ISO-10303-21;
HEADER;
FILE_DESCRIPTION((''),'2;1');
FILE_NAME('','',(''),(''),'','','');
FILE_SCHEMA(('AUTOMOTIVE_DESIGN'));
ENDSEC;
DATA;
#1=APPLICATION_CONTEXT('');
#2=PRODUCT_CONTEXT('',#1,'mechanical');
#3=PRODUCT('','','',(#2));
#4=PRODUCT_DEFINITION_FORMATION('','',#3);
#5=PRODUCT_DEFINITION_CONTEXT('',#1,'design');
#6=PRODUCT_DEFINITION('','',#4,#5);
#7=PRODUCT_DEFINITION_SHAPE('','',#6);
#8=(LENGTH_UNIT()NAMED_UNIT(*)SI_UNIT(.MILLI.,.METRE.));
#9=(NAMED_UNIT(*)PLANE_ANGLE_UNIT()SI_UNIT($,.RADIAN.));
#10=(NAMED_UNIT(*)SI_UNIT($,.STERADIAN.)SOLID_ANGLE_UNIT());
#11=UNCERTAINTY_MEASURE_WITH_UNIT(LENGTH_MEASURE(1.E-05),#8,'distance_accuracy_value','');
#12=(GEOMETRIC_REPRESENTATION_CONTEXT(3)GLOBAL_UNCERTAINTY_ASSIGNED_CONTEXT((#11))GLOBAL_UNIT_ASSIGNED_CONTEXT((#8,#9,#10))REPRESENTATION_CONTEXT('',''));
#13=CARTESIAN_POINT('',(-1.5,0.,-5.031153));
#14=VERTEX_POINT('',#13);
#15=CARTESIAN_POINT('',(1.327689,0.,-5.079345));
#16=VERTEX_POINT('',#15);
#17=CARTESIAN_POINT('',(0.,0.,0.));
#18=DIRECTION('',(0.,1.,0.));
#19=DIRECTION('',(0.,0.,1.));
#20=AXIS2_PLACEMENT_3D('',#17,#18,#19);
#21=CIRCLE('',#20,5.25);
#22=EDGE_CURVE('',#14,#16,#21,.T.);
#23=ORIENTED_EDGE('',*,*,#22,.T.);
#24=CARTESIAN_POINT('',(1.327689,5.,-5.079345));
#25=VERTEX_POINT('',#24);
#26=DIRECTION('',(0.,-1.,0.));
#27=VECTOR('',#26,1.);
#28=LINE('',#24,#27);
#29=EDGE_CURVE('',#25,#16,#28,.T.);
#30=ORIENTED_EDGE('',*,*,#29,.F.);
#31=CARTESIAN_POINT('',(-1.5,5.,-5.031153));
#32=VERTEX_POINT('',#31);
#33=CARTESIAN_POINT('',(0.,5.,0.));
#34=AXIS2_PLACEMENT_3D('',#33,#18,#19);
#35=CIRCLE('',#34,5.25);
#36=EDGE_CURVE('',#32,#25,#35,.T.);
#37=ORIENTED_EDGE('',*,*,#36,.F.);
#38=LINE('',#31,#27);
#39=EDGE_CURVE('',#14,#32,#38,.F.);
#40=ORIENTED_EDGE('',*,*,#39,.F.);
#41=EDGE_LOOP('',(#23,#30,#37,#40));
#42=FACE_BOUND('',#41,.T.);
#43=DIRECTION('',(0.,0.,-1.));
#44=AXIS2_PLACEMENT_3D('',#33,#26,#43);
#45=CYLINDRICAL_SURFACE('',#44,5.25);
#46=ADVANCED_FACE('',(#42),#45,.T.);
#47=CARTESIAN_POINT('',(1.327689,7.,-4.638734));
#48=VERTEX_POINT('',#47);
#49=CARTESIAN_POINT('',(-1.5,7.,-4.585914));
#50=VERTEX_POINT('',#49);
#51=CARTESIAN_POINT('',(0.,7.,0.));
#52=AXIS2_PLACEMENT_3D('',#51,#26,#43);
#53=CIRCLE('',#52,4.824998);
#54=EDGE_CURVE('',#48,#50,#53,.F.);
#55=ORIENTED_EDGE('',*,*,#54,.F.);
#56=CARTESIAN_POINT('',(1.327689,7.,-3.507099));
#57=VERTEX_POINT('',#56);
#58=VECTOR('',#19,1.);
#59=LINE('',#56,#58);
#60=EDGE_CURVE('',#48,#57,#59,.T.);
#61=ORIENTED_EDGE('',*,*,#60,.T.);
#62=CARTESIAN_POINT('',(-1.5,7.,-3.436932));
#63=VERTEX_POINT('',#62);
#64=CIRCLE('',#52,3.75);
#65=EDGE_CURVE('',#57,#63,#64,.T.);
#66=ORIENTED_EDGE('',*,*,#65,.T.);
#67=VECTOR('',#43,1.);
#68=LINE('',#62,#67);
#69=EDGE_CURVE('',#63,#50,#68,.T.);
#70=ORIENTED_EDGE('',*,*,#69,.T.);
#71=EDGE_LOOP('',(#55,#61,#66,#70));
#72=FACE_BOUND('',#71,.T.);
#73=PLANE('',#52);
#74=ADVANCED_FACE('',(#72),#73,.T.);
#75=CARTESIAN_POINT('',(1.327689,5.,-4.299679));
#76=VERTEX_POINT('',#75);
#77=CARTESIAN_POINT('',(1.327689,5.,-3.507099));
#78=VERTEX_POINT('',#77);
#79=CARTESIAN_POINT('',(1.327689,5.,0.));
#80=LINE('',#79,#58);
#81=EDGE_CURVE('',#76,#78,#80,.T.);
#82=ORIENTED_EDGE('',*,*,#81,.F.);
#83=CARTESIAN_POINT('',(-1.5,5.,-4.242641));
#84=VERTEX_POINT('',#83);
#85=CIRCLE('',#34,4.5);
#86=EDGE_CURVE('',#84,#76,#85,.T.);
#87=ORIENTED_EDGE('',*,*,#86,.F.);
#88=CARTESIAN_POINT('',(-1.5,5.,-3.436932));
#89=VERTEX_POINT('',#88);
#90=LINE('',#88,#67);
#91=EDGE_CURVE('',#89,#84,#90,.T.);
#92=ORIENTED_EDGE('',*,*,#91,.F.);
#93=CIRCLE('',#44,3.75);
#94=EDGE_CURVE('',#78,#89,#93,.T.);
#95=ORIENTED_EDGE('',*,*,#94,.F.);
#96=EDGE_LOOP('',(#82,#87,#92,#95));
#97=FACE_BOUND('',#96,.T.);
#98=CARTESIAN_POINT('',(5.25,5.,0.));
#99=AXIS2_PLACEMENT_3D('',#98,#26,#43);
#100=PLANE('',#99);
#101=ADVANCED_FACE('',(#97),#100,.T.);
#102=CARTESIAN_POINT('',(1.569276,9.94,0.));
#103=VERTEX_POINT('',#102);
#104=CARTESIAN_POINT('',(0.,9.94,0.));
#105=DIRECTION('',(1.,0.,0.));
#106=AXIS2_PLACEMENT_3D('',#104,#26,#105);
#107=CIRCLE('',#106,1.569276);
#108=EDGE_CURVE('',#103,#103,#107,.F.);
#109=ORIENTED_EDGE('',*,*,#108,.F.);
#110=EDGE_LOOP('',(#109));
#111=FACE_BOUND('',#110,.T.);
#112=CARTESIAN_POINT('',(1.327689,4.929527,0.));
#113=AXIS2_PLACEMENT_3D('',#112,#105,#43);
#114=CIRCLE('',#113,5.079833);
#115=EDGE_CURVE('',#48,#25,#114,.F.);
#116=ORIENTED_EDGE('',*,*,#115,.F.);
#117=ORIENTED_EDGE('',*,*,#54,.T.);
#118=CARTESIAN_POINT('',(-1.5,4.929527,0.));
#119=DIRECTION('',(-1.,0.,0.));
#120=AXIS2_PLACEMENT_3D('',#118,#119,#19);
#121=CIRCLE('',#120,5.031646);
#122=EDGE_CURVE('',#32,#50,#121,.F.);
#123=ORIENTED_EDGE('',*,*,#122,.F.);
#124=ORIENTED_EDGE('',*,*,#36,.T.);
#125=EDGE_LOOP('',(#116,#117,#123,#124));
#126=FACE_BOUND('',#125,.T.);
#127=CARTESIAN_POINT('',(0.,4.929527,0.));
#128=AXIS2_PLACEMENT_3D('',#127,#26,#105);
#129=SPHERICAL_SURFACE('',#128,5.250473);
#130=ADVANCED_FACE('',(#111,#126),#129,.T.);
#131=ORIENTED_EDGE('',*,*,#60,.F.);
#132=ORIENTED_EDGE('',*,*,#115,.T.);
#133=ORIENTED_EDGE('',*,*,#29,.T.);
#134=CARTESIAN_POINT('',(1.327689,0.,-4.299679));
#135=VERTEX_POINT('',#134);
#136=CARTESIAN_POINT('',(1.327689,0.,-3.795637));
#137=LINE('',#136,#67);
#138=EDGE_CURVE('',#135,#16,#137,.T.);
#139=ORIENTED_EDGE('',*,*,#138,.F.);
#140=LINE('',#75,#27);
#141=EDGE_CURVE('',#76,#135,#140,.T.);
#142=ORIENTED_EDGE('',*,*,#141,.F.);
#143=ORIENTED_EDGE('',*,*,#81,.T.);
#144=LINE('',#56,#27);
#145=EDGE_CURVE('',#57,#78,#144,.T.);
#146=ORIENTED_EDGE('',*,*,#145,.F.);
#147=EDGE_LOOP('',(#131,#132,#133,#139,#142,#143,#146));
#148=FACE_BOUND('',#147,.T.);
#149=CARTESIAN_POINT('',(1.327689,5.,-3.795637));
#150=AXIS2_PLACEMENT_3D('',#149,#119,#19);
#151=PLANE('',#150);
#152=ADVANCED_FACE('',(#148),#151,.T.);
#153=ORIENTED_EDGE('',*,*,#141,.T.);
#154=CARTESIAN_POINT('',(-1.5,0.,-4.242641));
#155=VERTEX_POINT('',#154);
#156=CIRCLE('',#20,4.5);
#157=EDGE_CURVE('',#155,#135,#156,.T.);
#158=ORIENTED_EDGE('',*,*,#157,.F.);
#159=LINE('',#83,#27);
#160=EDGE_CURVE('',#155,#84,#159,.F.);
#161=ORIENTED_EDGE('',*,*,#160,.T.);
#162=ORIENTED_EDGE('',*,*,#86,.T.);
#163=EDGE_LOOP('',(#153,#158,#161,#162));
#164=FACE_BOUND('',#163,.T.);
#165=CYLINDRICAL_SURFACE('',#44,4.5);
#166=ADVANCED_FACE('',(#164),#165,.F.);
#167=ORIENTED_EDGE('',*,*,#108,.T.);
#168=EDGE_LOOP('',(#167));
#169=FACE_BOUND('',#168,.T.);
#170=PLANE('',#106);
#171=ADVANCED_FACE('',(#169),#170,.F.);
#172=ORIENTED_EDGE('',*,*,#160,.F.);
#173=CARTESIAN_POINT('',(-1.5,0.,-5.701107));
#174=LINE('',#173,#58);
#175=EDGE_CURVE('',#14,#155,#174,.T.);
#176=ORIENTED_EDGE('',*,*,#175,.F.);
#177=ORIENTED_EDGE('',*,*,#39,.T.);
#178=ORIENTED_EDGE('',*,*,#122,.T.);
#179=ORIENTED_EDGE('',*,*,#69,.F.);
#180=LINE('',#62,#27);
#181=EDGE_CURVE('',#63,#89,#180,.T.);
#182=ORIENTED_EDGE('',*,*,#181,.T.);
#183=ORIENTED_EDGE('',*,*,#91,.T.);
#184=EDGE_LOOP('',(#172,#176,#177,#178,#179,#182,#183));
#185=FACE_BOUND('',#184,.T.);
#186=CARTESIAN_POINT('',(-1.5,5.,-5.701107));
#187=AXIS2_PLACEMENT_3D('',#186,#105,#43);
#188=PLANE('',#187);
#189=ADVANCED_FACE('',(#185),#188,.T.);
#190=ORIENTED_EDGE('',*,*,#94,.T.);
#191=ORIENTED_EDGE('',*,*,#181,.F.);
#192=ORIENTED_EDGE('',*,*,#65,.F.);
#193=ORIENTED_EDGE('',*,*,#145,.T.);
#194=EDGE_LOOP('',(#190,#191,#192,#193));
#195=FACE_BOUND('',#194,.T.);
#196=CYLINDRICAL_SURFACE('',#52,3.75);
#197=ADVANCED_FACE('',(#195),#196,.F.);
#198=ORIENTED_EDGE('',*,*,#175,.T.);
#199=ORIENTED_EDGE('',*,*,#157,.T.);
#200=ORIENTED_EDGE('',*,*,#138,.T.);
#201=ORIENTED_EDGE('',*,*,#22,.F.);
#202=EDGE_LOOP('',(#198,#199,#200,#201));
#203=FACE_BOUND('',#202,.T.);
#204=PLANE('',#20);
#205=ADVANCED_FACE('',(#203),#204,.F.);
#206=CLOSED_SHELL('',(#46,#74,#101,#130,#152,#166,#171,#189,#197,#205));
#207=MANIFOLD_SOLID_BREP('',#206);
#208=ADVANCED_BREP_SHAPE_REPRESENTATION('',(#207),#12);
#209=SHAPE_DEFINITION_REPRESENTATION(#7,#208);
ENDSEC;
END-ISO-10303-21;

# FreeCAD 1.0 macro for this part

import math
import FreeCAD as App
import Part
import Sketcher
from FreeCAD import Vector
Q = App.Units.Quantity

doc = App.newDocument("Part")
body = doc.addObject("PartDesign::Body", "Body")

sketch1 = doc.addObject("Sketcher::SketchObject", "Sketch")
body.addObject(sketch1)
sketch1.AttachmentSupport = (doc.XZ_Plane, [""])
sketch1.MapMode = "FlatFace"
sketch1.addGeometry([
    Part.Circle(Vector(0, 0, 0), Vector(0, 0, 1), 5.2),
    Part.Circle(Vector(0, 0, 0), Vector(0, 0, 1), 4.5),
], False)
sketch1.addConstraint([
    Sketcher.Constraint("Coincident", 0, 3, -1, 1),
    Sketcher.Constraint("Coincident", 1, 3, -1, 1),
    Sketcher.Constraint("Diameter", 1, Q("9 mm")),
    Sketcher.Constraint("Diameter", 0, Q("10.5 mm")),
])
pad1 = doc.addObject("PartDesign::Pad", "Pad")
body.addObject(pad1)
pad1.Profile = sketch1
pad1.Length = 5
pad1.Reversed = True

sketch2 = doc.addObject("Sketcher::SketchObject", "Sketch001")
body.addObject(sketch2)
sketch2.AttachmentSupport = (doc.XZ_Plane, [""])
sketch2.MapMode = "FlatFace"
sketch2.addGeometry([
    Part.LineSegment(Vector(1.3, -3.8, 0), Vector(1.3, -5.7, 0)),
    Part.LineSegment(Vector(1.3, -5.7, 0), Vector(-1.5, -5.7, 0)),
    Part.LineSegment(Vector(-1.5, -5.7, 0), Vector(-1.5, -3.7, 0)),
    Part.LineSegment(Vector(-1.5, -3.7, 0), Vector(1.3, -3.8, 0)),
], False)
sketch2.addConstraint([
    Sketcher.Constraint("Coincident", 0, 2, 1, 1),
    Sketcher.Constraint("Coincident", 1, 2, 2, 1),
    Sketcher.Constraint("Coincident", 2, 2, 3, 1),
    Sketcher.Constraint("Coincident", 3, 2, 0, 1),
    Sketcher.Constraint("Vertical", 0),
    Sketcher.Constraint("Horizontal", 1),
    Sketcher.Constraint("Vertical", 2),
    Sketcher.Constraint("DistanceY", 2, 1, 2, 2, Q("2 mm")),
    Sketcher.Constraint("DistanceX", 1, 2, -1, 1, Q("1.5 mm")),
    Sketcher.Constraint("DistanceX", 1, 2, 1, 1, Q("2.827689 mm")),
    Sketcher.Constraint("DistanceY", 0, 2, 0, 1, Q("1.90547 mm")),
    Sketcher.Constraint("DistanceY", 0, 2, -1, 1, Q("5.701107 mm")),
])
pocket1 = doc.addObject("PartDesign::Pocket", "Pocket")
body.addObject(pocket1)
pocket1.Profile = sketch2
pocket1.Length = 5

sketch3 = doc.addObject("Sketcher::SketchObject", "Sketch002")
body.addObject(sketch3)
sketch3.AttachmentSupport = (doc.XY_Plane, [""])
sketch3.MapMode = "FlatFace"
sketch3.addGeometry([
    Part.LineSegment(Vector(0, 5, 0), Vector(5, 5, 0)),
    Part.ArcOfCircle(Part.Circle(Vector(0, 5, 0), Vector(0, 0, 1), 5), math.radians(1), math.radians(90)),
    Part.LineSegment(Vector(0, 10, 0), Vector(0, 5, 0)),
], False)
sketch3.addConstraint([
    Sketcher.Constraint("Coincident", 0, 2, 1, 1),
    Sketcher.Constraint("Coincident", 1, 2, 2, 1),
    Sketcher.Constraint("Coincident", 2, 2, 0, 1),
    Sketcher.Constraint("Horizontal", 0),
    Sketcher.Constraint("Vertical", 2),
    Sketcher.Constraint("PointOnObject", 1, 3, -2),
    Sketcher.Constraint("PointOnObject", 1, 2, -2),
    Sketcher.Constraint("DistanceY", -1, 1, 0, 2, Q("5 mm")),
    Sketcher.Constraint("DistanceX", 0, 1, 0, 2, Q("5.25 mm")),
    Sketcher.Constraint("DistanceY", 2, 2, 2, 1, Q("5.18 mm")),
])
revolution = doc.addObject("PartDesign::Revolution", "Revolution")
body.addObject(revolution)
revolution.Profile = sketch3
revolution.ReferenceAxis = (sketch3, ["V_Axis"])
revolution.Angle = 360

sketch4 = doc.addObject("Sketcher::SketchObject", "Sketch003")
body.addObject(sketch4)
sketch4.AttachmentSupport = (doc.XZ_Plane, [""])
sketch4.MapMode = "FlatFace"
sketch4.AttachmentOffset = App.Placement(Vector(0, 0, -5), App.Rotation())
sketch4.addGeometry([
    Part.LineSegment(Vector(-1.5, -3.4, 0), Vector(-1.5, -6, 0)),
    Part.LineSegment(Vector(-1.5, -6, 0), Vector(1.3, -6, 0)),
    Part.LineSegment(Vector(1.3, -6, 0), Vector(1.3, -3.5, 0)),
    Part.ArcOfCircle(Part.Circle(Vector(0, 0, 0), Vector(0, 0, 1), 3.8), math.radians(-69), math.radians(246)),
], False)
sketch4.addConstraint([
    Sketcher.Constraint("Coincident", 0, 2, 1, 1),
    Sketcher.Constraint("Coincident", 1, 2, 2, 1),
    Sketcher.Constraint("Coincident", 2, 2, 3, 1),
    Sketcher.Constraint("Coincident", 3, 2, 0, 1),
    Sketcher.Constraint("Vertical", 0),
    Sketcher.Constraint("Horizontal", 1),
    Sketcher.Constraint("Vertical", 2),
    Sketcher.Constraint("Coincident", 3, 3, -1, 1),
    Sketcher.Constraint("Radius", 3, Q("3.75 mm")),
    Sketcher.Constraint("DistanceY", 0, 2, -1, 1, Q("6 mm")),
    Sketcher.Constraint("DistanceX", 0, 2, -1, 1, Q("1.5 mm")),
    Sketcher.Constraint("DistanceY", 2, 1, 2, 2, Q("2.492901 mm")),
])
pocket2 = doc.addObject("PartDesign::Pocket", "Pocket001")
body.addObject(pocket2)
pocket2.Profile = sketch4
pocket2.Length = 2

sketch5 = doc.addObject("Sketcher::SketchObject", "Sketch004")
body.addObject(sketch5)
sketch5.AttachmentSupport = (doc.XZ_Plane, [""])
sketch5.MapMode = "FlatFace"
sketch5.AttachmentOffset = App.Placement(Vector(0, 0, -10.29), App.Rotation())
sketch5.addGeometry(Part.Circle(Vector(0, 0, 0), Vector(0, 0, 1), 2), False)
sketch5.addConstraint([
    Sketcher.Constraint("Coincident", 0, 3, -1, 1),
    Sketcher.Constraint("Diameter", 0, Q("4 mm")),
])
pocket3 = doc.addObject("PartDesign::Pocket", "Pocket002")
body.addObject(pocket3)
pocket3.Profile = sketch5
pocket3.Length = 0.35
pocket3.Reversed = True

doc.recompute()
